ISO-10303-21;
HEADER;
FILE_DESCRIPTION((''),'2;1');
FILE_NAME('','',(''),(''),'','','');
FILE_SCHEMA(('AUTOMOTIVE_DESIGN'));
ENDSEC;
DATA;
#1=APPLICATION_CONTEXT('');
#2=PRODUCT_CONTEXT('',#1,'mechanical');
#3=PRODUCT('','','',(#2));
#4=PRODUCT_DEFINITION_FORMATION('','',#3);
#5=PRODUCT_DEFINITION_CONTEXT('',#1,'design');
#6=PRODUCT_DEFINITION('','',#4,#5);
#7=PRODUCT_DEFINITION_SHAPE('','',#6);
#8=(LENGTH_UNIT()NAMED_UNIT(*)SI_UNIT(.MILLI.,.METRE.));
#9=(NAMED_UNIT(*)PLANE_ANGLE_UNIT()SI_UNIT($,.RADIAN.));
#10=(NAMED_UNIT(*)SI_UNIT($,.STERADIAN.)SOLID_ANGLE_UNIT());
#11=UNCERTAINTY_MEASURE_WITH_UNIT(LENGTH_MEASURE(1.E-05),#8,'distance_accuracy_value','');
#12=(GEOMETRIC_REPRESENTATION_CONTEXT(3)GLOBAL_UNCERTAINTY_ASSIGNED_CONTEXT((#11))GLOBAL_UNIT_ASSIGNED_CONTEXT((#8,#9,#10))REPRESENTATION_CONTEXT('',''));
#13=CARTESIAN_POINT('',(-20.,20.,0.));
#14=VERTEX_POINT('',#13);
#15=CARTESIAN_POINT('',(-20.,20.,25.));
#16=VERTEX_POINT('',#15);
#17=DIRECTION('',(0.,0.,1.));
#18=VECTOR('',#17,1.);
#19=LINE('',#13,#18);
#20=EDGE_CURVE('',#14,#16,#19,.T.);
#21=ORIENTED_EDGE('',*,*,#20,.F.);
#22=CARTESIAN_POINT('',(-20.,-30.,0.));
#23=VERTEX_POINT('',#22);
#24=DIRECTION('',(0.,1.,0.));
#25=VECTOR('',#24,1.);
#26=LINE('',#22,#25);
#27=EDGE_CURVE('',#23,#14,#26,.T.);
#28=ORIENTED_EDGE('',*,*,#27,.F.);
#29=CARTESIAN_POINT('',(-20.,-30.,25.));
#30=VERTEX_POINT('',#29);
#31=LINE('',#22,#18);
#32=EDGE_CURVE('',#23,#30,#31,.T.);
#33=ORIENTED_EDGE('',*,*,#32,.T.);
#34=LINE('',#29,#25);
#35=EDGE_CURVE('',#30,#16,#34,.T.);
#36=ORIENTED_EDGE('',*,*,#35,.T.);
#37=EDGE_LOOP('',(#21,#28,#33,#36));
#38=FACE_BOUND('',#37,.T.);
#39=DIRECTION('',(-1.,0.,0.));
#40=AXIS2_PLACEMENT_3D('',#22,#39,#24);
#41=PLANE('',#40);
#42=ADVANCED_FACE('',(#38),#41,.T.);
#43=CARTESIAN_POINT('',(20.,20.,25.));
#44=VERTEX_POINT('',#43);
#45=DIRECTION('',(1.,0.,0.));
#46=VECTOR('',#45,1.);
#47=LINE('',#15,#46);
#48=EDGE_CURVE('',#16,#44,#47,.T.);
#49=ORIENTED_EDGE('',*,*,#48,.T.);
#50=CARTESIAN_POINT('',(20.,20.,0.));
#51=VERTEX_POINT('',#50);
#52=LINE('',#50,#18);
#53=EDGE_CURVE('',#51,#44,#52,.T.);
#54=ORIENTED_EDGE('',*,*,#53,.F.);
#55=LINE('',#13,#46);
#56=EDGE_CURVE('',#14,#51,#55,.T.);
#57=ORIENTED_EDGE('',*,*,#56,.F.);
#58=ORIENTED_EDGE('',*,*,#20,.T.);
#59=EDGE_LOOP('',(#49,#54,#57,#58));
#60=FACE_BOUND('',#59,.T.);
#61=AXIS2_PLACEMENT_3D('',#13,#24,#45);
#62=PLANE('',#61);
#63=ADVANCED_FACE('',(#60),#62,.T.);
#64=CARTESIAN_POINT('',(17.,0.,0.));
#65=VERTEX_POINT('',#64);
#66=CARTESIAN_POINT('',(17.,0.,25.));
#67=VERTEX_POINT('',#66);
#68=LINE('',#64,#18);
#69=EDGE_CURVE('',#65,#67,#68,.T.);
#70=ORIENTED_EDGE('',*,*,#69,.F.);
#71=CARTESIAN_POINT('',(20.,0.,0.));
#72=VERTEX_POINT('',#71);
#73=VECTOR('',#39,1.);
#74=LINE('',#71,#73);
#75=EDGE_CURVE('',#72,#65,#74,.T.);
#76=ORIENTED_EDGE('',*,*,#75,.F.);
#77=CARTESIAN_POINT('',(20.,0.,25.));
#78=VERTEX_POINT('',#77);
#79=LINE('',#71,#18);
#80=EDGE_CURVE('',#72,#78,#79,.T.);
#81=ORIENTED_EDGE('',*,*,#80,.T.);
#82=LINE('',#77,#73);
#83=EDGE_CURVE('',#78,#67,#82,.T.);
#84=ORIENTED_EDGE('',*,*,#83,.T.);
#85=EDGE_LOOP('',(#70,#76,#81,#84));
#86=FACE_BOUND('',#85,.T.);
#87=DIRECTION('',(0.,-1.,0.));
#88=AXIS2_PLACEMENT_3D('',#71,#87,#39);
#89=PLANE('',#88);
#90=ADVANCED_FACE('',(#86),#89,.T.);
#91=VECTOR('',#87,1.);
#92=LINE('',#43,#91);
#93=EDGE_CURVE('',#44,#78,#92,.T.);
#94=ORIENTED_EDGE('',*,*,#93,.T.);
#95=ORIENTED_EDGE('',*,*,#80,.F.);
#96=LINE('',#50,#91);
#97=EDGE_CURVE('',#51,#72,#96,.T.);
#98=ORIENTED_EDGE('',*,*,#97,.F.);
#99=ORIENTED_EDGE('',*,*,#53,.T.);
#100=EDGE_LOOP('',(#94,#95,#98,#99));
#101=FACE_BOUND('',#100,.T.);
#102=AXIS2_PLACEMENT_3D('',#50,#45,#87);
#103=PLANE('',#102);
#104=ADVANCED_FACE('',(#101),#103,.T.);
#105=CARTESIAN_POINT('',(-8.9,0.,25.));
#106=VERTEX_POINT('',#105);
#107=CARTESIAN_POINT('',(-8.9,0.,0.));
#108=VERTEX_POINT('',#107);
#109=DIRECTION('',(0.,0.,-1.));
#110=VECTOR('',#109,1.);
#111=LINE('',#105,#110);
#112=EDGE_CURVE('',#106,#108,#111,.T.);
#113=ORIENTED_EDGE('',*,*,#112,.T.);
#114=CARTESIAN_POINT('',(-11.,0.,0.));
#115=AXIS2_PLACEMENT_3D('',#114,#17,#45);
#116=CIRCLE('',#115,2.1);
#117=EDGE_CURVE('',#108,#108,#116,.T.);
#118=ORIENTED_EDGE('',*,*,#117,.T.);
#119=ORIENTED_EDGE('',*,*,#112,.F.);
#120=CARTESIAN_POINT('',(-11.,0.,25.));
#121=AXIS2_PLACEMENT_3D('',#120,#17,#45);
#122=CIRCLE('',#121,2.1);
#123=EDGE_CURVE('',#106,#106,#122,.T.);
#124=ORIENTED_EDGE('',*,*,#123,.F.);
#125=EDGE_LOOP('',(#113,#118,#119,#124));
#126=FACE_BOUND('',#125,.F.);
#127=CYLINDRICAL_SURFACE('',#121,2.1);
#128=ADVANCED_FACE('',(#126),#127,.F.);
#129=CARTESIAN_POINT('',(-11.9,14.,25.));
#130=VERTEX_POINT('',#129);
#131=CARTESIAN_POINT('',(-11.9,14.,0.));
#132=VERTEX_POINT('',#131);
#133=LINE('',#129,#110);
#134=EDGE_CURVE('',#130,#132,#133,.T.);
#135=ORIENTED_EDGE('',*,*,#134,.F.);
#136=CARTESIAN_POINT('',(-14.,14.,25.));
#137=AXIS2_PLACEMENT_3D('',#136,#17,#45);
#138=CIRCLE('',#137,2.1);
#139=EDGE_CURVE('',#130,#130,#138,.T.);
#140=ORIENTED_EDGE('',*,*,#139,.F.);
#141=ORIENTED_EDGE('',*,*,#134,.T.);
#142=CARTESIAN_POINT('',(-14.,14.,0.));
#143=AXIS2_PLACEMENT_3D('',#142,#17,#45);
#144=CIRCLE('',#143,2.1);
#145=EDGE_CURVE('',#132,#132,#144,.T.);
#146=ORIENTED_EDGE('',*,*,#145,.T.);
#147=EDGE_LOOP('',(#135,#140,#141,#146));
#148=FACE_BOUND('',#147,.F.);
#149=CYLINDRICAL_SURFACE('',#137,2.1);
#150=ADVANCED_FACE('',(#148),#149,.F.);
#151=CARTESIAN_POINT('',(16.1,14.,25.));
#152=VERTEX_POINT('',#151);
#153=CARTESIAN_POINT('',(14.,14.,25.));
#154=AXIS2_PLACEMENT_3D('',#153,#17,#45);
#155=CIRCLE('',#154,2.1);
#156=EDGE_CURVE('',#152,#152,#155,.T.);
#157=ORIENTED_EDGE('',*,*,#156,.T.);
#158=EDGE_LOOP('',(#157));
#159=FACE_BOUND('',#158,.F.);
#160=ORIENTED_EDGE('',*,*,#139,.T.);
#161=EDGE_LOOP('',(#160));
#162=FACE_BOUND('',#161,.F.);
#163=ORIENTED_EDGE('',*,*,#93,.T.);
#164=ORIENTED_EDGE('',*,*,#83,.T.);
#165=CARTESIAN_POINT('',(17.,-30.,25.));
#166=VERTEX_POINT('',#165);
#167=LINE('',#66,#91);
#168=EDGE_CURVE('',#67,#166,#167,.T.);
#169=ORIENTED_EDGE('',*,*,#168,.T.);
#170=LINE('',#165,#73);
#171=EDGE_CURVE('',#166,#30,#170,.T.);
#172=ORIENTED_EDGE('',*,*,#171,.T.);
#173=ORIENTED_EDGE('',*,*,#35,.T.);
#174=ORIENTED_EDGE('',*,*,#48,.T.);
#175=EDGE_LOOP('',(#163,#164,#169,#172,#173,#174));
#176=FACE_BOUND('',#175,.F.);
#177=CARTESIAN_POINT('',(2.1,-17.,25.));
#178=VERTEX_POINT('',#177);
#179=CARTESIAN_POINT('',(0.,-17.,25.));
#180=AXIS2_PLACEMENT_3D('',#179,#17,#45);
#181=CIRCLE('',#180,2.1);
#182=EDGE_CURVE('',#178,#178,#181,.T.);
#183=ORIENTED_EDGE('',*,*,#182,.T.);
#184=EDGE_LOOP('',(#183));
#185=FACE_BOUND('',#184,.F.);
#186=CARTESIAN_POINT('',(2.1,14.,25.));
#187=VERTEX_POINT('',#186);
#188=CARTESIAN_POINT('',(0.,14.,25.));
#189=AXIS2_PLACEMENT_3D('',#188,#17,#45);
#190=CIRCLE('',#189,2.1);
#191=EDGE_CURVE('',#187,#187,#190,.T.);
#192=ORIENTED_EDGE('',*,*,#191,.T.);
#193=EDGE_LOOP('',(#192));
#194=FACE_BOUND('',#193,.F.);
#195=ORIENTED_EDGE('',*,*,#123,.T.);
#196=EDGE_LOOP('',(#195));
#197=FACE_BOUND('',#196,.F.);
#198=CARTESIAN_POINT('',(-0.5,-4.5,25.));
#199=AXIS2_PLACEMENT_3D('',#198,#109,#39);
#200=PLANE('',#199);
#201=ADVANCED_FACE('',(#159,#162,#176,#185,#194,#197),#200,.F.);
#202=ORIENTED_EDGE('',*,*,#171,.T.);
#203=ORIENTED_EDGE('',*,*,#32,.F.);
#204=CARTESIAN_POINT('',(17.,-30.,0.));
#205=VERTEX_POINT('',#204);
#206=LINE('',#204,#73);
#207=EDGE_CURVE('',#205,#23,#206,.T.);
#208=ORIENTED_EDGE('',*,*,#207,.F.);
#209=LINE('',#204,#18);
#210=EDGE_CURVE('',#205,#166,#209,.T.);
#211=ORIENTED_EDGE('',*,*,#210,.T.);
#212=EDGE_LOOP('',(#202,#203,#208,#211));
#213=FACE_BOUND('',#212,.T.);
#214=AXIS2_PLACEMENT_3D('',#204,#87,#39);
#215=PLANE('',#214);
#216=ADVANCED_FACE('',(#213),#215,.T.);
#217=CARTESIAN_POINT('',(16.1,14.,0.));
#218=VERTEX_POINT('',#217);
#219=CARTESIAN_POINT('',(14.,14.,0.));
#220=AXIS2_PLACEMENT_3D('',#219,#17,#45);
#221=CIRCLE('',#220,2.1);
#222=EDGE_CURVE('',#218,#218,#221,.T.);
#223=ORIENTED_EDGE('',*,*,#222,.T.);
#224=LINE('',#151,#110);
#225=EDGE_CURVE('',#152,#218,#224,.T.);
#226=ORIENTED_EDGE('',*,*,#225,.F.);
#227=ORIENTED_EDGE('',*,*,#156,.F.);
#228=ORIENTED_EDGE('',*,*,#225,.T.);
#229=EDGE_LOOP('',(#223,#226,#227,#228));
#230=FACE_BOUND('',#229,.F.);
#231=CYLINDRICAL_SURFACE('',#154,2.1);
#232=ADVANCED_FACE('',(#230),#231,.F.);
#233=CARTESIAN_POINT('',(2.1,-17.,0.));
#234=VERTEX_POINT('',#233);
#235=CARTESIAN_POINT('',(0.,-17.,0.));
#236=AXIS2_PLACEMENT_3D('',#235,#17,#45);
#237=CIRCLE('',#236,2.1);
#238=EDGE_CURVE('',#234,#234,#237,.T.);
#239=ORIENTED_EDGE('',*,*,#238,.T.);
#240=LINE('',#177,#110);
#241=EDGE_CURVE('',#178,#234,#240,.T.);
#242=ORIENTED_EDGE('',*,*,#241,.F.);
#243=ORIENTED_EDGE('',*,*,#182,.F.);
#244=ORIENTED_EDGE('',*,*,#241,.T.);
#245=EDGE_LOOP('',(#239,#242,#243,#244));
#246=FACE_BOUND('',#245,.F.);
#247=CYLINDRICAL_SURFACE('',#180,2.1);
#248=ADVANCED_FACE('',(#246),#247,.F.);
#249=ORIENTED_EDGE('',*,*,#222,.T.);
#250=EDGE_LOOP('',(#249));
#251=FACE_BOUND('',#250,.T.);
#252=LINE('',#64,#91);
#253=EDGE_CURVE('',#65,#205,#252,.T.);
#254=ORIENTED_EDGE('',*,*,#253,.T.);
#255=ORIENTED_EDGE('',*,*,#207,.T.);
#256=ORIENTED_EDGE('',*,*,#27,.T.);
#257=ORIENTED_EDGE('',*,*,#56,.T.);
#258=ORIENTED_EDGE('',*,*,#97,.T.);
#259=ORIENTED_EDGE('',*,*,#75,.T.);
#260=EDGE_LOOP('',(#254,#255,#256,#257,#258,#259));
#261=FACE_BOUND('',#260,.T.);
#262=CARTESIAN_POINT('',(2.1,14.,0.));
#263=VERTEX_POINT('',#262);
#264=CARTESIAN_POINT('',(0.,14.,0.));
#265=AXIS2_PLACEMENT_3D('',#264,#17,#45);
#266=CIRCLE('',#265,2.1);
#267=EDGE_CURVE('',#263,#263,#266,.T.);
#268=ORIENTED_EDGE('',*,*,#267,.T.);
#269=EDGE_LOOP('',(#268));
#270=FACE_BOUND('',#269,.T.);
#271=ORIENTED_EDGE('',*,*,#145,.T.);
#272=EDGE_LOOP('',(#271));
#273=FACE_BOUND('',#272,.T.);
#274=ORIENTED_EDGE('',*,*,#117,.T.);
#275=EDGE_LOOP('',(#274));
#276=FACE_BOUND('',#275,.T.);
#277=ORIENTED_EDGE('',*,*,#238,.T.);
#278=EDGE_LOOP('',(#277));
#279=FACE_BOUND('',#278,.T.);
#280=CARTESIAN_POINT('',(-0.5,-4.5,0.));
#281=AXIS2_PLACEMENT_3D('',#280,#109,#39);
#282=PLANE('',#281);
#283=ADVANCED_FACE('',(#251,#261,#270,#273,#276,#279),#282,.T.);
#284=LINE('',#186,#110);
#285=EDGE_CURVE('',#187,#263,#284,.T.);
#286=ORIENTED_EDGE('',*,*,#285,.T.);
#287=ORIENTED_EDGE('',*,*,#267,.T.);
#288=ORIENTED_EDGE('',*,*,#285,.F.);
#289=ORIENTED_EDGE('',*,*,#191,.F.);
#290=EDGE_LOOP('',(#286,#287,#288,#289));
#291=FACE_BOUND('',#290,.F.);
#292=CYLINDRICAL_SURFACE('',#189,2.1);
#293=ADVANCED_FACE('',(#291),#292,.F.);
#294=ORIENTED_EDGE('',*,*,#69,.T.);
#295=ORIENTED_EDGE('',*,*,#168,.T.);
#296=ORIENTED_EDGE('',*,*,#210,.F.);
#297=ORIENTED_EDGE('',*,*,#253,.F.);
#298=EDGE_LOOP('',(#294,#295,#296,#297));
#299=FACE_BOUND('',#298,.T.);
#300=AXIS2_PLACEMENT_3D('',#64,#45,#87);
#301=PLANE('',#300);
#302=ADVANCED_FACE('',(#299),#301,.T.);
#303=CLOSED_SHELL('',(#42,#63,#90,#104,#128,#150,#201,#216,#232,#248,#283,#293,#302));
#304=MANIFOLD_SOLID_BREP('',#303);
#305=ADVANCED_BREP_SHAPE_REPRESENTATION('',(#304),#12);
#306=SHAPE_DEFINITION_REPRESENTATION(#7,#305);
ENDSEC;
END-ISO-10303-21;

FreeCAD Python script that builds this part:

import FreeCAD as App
import Part
import Sketcher
Q = App.Units.Quantity


def add_polygon(sketch, points):
    """Adds a closed chain of lines whose ends are joined by coincident constraints."""
    first, n = sketch.GeometryCount, len(points)
    for a, b in zip(points, points[1:] + points[:1]):
        sketch.addGeometry(Part.LineSegment(App.Vector(*a, 0), App.Vector(*b, 0)), False)
    for i in range(n):
        sketch.addConstraint(Sketcher.Constraint("Coincident", first + i, 2, first + (i + 1) % n, 1))

doc = App.newDocument("Part")
body = doc.addObject("PartDesign::Body", "Body")

# Sketch on XY plane
sketch1 = body.newObject("Sketcher::SketchObject", "Sketch")
sketch1.AttachmentSupport = (doc.getObject("XY_Plane"), [""])
sketch1.MapMode = "FlatFace"
add_polygon(sketch1, [(-20, -30), (17, -30), (17, 0), (20, 0), (20, 20), (-20, 20)])  # lines 0-5
sketch1.addConstraint(Sketcher.Constraint("Horizontal", 0))
sketch1.addConstraint(Sketcher.Constraint("Vertical", 1))
sketch1.addConstraint(Sketcher.Constraint("Horizontal", 2))
sketch1.addConstraint(Sketcher.Constraint("Vertical", 3))
sketch1.addConstraint(Sketcher.Constraint("Horizontal", 4))
sketch1.addConstraint(Sketcher.Constraint("Vertical", 5))
sketch1.addConstraint(Sketcher.Constraint("PointOnObject", 1, 2, -1))
sketch1.addConstraint(Sketcher.Constraint("DistanceX", 0, 1, 0, 2, Q("37 mm")))
sketch1.addConstraint(Sketcher.Constraint("DistanceX", 2, 1, 2, 2, Q("3 mm")))
sketch1.addConstraint(Sketcher.Constraint("DistanceY", 1, 1, 1, 2, Q("30 mm")))
sketch1.addConstraint(Sketcher.Constraint("DistanceY", 3, 1, 3, 2, Q("20 mm")))
sketch1.addConstraint(Sketcher.Constraint("DistanceX", -1, 1, 0, 2, Q("17 mm")))
pad1 = body.newObject("PartDesign::Pad", "Pad")
pad1.Profile = sketch1
pad1.Length = 25

# Sketch on XY plane
sketch2 = body.newObject("Sketcher::SketchObject", "Sketch001")
sketch2.AttachmentSupport = (doc.getObject("XY_Plane"), [""])
sketch2.MapMode = "FlatFace"
sketch2.AttachmentOffset = App.Placement(App.Vector(0, 0, 25), App.Rotation())
sketch2.addGeometry(Part.Circle(App.Vector(0, -17, 0), App.Vector(0, 0, 1), 2.1), False)
sketch2.addGeometry(Part.Circle(App.Vector(-11, 0, 0), App.Vector(0, 0, 1), 2.1), False)
sketch2.addGeometry(Part.Circle(App.Vector(-14, 14, 0), App.Vector(0, 0, 1), 2.1), False)
sketch2.addGeometry(Part.Circle(App.Vector(14, 14, 0), App.Vector(0, 0, 1), 2.1), False)
sketch2.addGeometry(Part.Circle(App.Vector(0, 14, 0), App.Vector(0, 0, 1), 2.1), False)
sketch2.addConstraint(Sketcher.Constraint("Equal", 0, 1))
sketch2.addConstraint(Sketcher.Constraint("Equal", 1, 2))
sketch2.addConstraint(Sketcher.Constraint("Equal", 2, 3))
sketch2.addConstraint(Sketcher.Constraint("Equal", 3, 4))
sketch2.addConstraint(Sketcher.Constraint("Symmetric", 2, 3, 3, 3, -2))
sketch2.addConstraint(Sketcher.Constraint("PointOnObject", 0, 3, -2))
sketch2.addConstraint(Sketcher.Constraint("PointOnObject", 1, 3, -1))
sketch2.addConstraint(Sketcher.Constraint("PointOnObject", 4, 3, -2))
sketch2.addConstraint(Sketcher.Constraint("Horizontal", 3, 3, 4, 3))
sketch2.addConstraint(Sketcher.Constraint("Diameter", 0, Q("4.2 mm")))
sketch2.addConstraint(Sketcher.Constraint("DistanceY", 0, 3, -1, 1, Q("17 mm")))
sketch2.addConstraint(Sketcher.Constraint("DistanceX", 1, 3, -1, 1, Q("11 mm")))
sketch2.addConstraint(Sketcher.Constraint("DistanceX", 2, 3, -1, 1, Q("14 mm")))
sketch2.addConstraint(Sketcher.Constraint("DistanceY", -1, 1, 2, 3, Q("14 mm")))
pocket1 = body.newObject("PartDesign::Pocket", "Pocket")
pocket1.Profile = sketch2
pocket1.Type = "ThroughAll"

doc.recompute()
